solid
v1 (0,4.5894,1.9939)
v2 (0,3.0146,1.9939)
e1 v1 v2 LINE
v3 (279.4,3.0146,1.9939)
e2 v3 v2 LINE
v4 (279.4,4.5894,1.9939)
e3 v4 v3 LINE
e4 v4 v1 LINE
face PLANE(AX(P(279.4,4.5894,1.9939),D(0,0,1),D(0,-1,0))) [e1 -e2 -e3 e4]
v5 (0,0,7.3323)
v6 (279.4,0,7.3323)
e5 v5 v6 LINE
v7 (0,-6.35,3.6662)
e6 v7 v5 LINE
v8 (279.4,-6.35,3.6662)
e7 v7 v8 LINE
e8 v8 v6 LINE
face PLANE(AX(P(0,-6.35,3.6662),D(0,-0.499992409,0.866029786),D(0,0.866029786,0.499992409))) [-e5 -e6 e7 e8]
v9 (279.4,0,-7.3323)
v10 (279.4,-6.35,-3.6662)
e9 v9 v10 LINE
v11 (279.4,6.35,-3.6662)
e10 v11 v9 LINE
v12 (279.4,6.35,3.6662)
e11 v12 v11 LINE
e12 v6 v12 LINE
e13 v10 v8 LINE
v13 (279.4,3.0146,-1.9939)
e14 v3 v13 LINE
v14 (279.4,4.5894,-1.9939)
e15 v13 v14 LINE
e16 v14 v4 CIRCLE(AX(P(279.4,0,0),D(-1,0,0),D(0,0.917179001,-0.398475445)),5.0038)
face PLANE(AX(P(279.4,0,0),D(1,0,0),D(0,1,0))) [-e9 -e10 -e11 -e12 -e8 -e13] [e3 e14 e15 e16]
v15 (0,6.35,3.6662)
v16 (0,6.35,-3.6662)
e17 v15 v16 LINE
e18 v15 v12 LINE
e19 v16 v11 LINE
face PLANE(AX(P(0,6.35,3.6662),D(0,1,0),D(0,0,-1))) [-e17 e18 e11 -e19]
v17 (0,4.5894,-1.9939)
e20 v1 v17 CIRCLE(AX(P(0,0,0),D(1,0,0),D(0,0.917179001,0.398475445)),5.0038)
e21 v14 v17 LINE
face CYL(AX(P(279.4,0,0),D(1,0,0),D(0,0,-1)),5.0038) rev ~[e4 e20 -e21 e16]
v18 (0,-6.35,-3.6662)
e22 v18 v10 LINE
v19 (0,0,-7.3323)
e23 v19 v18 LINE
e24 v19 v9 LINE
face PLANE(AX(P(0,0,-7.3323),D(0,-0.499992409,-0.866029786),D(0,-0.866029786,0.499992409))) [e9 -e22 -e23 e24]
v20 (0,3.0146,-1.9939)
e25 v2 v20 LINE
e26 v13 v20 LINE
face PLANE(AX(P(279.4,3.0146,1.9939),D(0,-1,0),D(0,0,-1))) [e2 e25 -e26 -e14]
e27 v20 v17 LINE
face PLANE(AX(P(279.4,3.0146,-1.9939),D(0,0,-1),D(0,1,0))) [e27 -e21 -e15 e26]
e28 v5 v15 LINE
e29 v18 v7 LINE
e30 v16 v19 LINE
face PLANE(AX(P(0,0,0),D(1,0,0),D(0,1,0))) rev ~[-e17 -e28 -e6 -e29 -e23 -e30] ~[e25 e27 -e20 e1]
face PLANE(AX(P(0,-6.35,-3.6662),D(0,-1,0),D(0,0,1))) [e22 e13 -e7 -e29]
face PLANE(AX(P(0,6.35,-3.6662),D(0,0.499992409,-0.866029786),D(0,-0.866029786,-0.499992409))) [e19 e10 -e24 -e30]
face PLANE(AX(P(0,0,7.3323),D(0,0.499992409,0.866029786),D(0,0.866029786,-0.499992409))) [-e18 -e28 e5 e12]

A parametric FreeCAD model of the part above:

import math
import FreeCAD as App
import Part
import Sketcher
from FreeCAD import Vector
Q = App.Units.Quantity


def add_polygon(sketch, points):
    """Adds a closed chain of lines whose ends are joined by coincident constraints."""
    first, n = sketch.GeometryCount, len(points)
    for a, b in zip(points, points[1:] + points[:1]):
        sketch.addGeometry(Part.LineSegment(App.Vector(*a, 0), App.Vector(*b, 0)), False)
    for i in range(n):
        sketch.addConstraint(Sketcher.Constraint("Coincident", first + i, 2, first + (i + 1) % n, 1))

doc = App.newDocument("Part")
body = doc.addObject("PartDesign::Body", "Body")

sketch1 = body.newObject("Sketcher::SketchObject", "Sketch")
sketch1.AttachmentSupport = (doc.getObject("YZ_Plane"), [""])
sketch1.MapMode = "FlatFace"
add_polygon(sketch1, [(0, -7.3323), (6.35, -3.6662), (6.35, 3.6662), (0, 7.3323), (-6.35, 3.6662), (-6.35, -3.6662)])
sketch1.addConstraint(Sketcher.Constraint("Vertical", 1))
sketch1.addConstraint(Sketcher.Constraint("Vertical", 4))
sketch1.addConstraint(Sketcher.Constraint("Symmetric", 0, 2, 3, 2, -1, 1))
sketch1.addConstraint(Sketcher.Constraint("Symmetric", 2, 2, 5, 2, -1, 1))
sketch1.addConstraint(Sketcher.Constraint("PointOnObject", 2, 2, -2))
sketch1.addConstraint(Sketcher.Constraint("Parallel", 2, 5))
sketch1.addConstraint(Sketcher.Constraint("Horizontal", 1, 2, 3, 2))
sketch1.addConstraint(Sketcher.Constraint("DistanceX", -1, 1, 0, 2, Q("0.25 in")))
sketch1.addConstraint(Sketcher.Constraint("Angle", 0, Q("29.9995 deg")))
sketch1.addConstraint(Sketcher.Constraint("DistanceY", 0, 2, 2, 2, Q("0.433 in")))
pad1 = body.newObject("PartDesign::Pad", "Pad")
pad1.Profile = sketch1
pad1.Length = Q("11 in")

sketch2 = body.newObject("Sketcher::SketchObject", "Sketch001")
sketch2.AttachmentSupport = (doc.getObject("YZ_Plane"), [""])
sketch2.MapMode = "FlatFace"
sketch2.AttachmentOffset = App.Placement(Vector(0, 0, 11 * 25.4), App.Rotation())
sketch2.addGeometry(Part.ArcOfCircle(Part.Circle(Vector(0, 0, 0), Vector(0, 0, 1), 5.0038), math.radians(23.482906), math.radians(336.517094)), False)
sketch2.addGeometry(Part.LineSegment(Vector(4.5894, -1.9939, 0), Vector(3.0146, -1.9939, 0)), False)
sketch2.addGeometry(Part.LineSegment(Vector(3.0146, -1.9939, 0), Vector(3.0146, 1.9939, 0)), False)
sketch2.addGeometry(Part.LineSegment(Vector(3.0146, 1.9939, 0), Vector(4.5894, 1.9939, 0)), False)
sketch2.addConstraint(Sketcher.Constraint("Coincident", 0, 2, 1, 1))
sketch2.addConstraint(Sketcher.Constraint("Coincident", 1, 2, 2, 1))
sketch2.addConstraint(Sketcher.Constraint("Coincident", 2, 2, 3, 1))
sketch2.addConstraint(Sketcher.Constraint("Coincident", 3, 2, 0, 1))
sketch2.addConstraint(Sketcher.Constraint("Horizontal", 1))
sketch2.addConstraint(Sketcher.Constraint("Vertical", 2))
sketch2.addConstraint(Sketcher.Constraint("Horizontal", 3))
sketch2.addConstraint(Sketcher.Constraint("Coincident", 0, 3, -1, 1))
sketch2.addConstraint(Sketcher.Constraint("Vertical", 0, 2, 3, 2))
sketch2.addConstraint(Sketcher.Constraint("Radius", 0, Q("0.197 in")))
sketch2.addConstraint(Sketcher.Constraint("DistanceX", 1, 2, 1, 1, Q("0.062 in")))
sketch2.addConstraint(Sketcher.Constraint("DistanceY", 2, 1, 2, 2, Q("0.157 in")))
pocket1 = body.newObject("PartDesign::Pocket", "Pocket")
pocket1.Profile = sketch2
pocket1.Type = "ThroughAll"

doc.recompute()
